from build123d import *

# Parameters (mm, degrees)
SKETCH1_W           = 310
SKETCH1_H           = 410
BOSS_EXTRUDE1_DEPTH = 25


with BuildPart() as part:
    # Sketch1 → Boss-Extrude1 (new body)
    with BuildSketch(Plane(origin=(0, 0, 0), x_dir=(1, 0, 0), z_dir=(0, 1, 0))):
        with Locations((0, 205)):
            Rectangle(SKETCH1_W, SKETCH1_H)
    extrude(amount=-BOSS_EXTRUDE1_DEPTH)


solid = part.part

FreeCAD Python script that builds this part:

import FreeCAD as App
import Part
import Sketcher


def add_polygon(sketch, points):
    """Adds a closed chain of lines whose ends are joined by coincident constraints."""
    first, n = sketch.GeometryCount, len(points)
    for a, b in zip(points, points[1:] + points[:1]):
        sketch.addGeometry(Part.LineSegment(App.Vector(*a, 0), App.Vector(*b, 0)), False)
    for i in range(n):
        sketch.addConstraint(Sketcher.Constraint("Coincident", first + i, 2, first + (i + 1) % n, 1))

doc = App.newDocument("Part")
params = doc.addObject("Spreadsheet::Sheet", "Params")
for row, (alias, value) in enumerate([
    ("sketch1_width", "310 mm"),
    ("sketch1_height", "410 mm"),
    ("pad1_length", "25 mm"),
], start=1):
    params.set(f"A{row}", alias)
    params.set(f"B{row}", "=" + value)
    params.setAlias(f"B{row}", alias)

body = doc.addObject("PartDesign::Body", "Body")

# Sketch on XZ plane
sketch1 = body.newObject("Sketcher::SketchObject", "Sketch")
sketch1.AttachmentSupport = (doc.getObject("XZ_Plane"), [""])
sketch1.MapMode = "FlatFace"
add_polygon(sketch1, [(-155, -410), (-155, 0), (155, 0), (155, -410)])  # lines 0-3
sketch1.addConstraint([
    Sketcher.Constraint("Vertical", 0),
    Sketcher.Constraint("Horizontal", 1),
    Sketcher.Constraint("Vertical", 2),
    Sketcher.Constraint("Horizontal", 3),
    Sketcher.Constraint("Symmetric", 0, 2, 1, 2, -1, 1),
    Sketcher.Constraint("DistanceX", 1, 1, 1, 2, 310.0),
    Sketcher.Constraint("DistanceY", 0, 1, 0, 2, 410.0),
])
sketch1.setExpression("Constraints[9]", "Params.sketch1_width")
sketch1.setExpression("Constraints[10]", "Params.sketch1_height")
pad1 = body.newObject("PartDesign::Pad", "Pad")
pad1.Profile = sketch1
pad1.setExpression("Length", "Params.pad1_length")

doc.recompute()
